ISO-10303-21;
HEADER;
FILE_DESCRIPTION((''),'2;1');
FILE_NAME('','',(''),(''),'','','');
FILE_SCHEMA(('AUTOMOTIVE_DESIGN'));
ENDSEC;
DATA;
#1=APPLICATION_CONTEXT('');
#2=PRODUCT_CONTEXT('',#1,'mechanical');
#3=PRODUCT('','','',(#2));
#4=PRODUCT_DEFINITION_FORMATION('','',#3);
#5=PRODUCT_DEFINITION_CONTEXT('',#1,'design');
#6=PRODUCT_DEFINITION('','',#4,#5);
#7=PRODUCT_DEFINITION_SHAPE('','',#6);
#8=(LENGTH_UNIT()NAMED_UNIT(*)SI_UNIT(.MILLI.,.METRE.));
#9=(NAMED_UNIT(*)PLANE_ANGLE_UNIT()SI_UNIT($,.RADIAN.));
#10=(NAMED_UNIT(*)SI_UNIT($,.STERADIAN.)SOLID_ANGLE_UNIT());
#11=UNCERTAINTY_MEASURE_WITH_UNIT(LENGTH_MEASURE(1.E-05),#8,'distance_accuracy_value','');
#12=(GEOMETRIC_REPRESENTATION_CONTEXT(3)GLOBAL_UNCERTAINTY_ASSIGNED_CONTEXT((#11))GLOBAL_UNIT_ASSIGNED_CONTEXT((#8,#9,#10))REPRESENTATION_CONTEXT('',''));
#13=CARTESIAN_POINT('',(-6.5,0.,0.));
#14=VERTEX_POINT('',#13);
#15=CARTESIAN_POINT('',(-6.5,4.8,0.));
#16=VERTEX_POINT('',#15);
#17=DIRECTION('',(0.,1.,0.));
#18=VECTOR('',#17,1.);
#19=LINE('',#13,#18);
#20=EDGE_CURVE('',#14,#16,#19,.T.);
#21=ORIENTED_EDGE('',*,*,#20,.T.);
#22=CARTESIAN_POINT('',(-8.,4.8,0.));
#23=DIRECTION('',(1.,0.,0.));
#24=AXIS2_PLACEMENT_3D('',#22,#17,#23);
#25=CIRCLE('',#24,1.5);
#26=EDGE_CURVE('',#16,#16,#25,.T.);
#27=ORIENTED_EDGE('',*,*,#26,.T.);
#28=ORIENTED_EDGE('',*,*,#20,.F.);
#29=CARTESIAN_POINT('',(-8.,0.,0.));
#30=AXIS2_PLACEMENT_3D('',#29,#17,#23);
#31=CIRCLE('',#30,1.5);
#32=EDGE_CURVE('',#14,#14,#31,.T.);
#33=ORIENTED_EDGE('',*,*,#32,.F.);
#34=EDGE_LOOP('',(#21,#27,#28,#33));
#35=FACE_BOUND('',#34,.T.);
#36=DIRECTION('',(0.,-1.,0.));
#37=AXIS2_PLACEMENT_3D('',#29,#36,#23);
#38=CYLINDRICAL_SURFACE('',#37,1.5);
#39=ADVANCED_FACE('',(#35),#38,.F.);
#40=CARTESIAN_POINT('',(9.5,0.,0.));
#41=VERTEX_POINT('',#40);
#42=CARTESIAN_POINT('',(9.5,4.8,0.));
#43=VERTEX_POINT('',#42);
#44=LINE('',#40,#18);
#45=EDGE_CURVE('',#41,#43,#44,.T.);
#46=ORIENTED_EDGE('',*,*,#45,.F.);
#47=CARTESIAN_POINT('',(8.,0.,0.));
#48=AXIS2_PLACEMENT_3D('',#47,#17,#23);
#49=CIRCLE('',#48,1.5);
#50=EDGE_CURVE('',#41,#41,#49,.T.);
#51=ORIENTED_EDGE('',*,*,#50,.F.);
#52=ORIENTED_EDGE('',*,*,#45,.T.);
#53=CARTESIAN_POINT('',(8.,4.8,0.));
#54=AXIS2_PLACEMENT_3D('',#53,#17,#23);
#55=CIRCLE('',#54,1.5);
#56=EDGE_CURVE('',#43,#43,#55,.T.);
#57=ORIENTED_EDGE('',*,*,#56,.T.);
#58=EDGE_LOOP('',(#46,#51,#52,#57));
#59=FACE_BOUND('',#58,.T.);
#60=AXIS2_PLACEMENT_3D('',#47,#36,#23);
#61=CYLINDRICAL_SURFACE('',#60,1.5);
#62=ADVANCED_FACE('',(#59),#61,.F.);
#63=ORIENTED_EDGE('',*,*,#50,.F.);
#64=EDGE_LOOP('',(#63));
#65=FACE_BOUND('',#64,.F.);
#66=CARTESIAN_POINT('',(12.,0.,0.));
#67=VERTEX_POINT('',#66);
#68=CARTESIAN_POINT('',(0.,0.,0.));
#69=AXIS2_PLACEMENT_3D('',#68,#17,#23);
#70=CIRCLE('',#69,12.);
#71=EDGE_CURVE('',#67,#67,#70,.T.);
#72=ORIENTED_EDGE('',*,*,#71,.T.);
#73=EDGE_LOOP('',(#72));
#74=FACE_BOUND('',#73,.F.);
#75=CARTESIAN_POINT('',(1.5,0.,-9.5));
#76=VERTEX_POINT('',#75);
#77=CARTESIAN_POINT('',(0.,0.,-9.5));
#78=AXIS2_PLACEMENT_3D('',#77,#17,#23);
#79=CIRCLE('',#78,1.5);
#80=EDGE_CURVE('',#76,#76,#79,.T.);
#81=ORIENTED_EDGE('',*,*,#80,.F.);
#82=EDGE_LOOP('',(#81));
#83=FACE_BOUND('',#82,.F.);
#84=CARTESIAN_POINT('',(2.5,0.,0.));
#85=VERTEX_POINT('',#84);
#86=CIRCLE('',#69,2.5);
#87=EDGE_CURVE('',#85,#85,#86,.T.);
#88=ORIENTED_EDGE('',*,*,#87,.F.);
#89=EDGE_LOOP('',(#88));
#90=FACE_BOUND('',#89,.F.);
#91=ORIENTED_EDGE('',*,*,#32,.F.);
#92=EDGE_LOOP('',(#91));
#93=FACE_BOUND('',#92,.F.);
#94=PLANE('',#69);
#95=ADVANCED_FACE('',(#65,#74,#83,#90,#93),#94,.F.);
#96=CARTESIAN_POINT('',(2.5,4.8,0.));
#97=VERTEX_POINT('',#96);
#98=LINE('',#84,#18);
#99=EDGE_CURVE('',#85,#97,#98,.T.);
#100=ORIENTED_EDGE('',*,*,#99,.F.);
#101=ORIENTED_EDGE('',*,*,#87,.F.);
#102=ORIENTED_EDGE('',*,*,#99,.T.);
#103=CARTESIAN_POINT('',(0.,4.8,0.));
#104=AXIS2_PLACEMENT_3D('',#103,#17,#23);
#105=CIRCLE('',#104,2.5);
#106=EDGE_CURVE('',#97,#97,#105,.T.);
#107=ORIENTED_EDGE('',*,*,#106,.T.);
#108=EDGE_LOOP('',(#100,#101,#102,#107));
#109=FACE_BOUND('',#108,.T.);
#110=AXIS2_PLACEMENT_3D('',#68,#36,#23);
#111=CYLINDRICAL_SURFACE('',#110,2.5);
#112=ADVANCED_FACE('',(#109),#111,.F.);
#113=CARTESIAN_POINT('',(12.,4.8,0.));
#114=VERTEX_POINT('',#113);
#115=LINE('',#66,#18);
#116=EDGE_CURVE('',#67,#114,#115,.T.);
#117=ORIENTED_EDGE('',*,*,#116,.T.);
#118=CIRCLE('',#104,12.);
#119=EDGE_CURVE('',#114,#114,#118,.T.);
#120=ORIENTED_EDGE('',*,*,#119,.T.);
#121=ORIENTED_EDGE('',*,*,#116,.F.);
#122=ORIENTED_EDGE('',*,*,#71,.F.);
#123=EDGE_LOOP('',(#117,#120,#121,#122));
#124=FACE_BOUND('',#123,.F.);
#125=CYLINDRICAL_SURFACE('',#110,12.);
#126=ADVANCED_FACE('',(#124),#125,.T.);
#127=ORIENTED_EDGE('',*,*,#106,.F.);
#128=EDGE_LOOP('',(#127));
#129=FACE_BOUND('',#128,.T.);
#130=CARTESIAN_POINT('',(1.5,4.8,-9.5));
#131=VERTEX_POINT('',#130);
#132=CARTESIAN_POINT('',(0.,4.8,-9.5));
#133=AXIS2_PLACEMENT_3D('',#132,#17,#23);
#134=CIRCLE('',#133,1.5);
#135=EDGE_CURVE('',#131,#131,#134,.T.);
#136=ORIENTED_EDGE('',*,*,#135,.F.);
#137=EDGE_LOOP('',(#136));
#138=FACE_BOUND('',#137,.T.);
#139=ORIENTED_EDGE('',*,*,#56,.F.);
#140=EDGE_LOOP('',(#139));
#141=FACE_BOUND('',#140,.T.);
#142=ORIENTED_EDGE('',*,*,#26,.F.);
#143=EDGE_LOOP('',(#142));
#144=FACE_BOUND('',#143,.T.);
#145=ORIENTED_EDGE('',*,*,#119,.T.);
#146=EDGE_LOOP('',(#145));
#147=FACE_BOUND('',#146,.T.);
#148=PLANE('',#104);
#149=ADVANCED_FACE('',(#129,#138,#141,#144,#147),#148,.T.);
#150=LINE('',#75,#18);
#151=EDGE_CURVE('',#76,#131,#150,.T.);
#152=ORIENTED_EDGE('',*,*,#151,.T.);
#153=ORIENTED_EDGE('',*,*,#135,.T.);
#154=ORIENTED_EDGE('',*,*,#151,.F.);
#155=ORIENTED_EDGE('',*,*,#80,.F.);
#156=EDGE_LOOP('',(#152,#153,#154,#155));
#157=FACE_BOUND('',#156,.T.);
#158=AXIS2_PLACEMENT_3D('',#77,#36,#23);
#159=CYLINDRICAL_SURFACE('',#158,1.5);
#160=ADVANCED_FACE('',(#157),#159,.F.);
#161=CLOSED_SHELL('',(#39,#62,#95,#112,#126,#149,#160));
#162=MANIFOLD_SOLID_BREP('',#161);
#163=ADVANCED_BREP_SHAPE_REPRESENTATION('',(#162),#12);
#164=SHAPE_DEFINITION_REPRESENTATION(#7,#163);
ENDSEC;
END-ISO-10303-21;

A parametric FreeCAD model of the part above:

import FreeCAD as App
import Part
import Sketcher
Q = App.Units.Quantity

doc = App.newDocument("Part")
body = doc.addObject("PartDesign::Body", "Body")

sketch1 = body.newObject("Sketcher::SketchObject", "Sketch")
sketch1.AttachmentSupport = (doc.getObject("XZ_Plane"), [""])
sketch1.MapMode = "FlatFace"
sketch1.addGeometry(Part.Circle(App.Vector(0, 0, 0), App.Vector(0, 0, 1), 12), False)
sketch1.addGeometry(Part.Circle(App.Vector(-8, 0, 0), App.Vector(0, 0, 1), 1.5), False)
sketch1.addGeometry(Part.Circle(App.Vector(0, 0, 0), App.Vector(0, 0, 1), 2.5), False)
sketch1.addGeometry(Part.Circle(App.Vector(8, 0, 0), App.Vector(0, 0, 1), 1.5), False)
sketch1.addGeometry(Part.Circle(App.Vector(0, -9.5, 0), App.Vector(0, 0, 1), 1.5), False)
sketch1.addConstraint(Sketcher.Constraint("Coincident", 0, 3, -1, 1))
sketch1.addConstraint(Sketcher.Constraint("Coincident", 2, 3, -1, 1))
sketch1.addConstraint(Sketcher.Constraint("Equal", 1, 3))
sketch1.addConstraint(Sketcher.Constraint("Equal", 3, 4))
sketch1.addConstraint(Sketcher.Constraint("Symmetric", 1, 3, 3, 3, -1, 1))
sketch1.addConstraint(Sketcher.Constraint("PointOnObject", 1, 3, -1))
sketch1.addConstraint(Sketcher.Constraint("PointOnObject", 4, 3, -2))
sketch1.addConstraint(Sketcher.Constraint("Diameter", 0, Q("24 mm")))
sketch1.addConstraint(Sketcher.Constraint("Diameter", 1, Q("3 mm")))
sketch1.addConstraint(Sketcher.Constraint("Diameter", 2, Q("5 mm")))
sketch1.addConstraint(Sketcher.Constraint("DistanceX", 1, 3, 3, 3, Q("16 mm")))
sketch1.addConstraint(Sketcher.Constraint("DistanceY", 4, 3, -1, 1, Q("9.5 mm")))
pad1 = body.newObject("PartDesign::Pad", "Pad")
pad1.Profile = sketch1
pad1.Length = 4.8
pad1.Reversed = True

doc.recompute()
